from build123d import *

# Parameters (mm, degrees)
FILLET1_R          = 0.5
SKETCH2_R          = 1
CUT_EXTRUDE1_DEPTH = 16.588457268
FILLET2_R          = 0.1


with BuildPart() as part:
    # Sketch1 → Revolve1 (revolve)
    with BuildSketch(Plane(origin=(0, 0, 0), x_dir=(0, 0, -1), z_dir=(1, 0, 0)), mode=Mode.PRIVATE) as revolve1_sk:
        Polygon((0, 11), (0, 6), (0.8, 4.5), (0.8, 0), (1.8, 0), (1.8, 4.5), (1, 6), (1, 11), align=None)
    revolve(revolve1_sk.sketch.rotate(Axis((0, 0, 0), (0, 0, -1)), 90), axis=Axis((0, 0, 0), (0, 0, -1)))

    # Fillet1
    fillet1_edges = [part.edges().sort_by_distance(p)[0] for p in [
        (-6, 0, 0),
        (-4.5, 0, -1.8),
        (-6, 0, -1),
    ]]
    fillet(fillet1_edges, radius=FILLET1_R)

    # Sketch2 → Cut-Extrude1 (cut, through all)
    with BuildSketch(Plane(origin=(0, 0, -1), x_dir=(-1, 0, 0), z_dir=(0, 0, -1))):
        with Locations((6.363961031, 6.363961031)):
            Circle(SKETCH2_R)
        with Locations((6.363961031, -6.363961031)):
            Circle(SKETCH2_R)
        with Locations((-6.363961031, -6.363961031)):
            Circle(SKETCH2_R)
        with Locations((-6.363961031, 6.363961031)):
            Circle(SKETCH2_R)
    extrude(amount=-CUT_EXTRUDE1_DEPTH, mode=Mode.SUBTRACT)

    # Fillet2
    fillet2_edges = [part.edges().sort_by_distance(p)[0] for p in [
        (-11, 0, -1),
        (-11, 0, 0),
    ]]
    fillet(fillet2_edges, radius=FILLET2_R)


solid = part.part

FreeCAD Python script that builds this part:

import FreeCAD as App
import Part
import Sketcher

V = App.Vector


def edges_at(feature, points):
    """Names of the edges that pass closest to the given points."""
    edges = feature.Shape.Edges
    near = lambda p: min(range(len(edges)), key=lambda i: edges[i].distToShape(Part.Vertex(*p))[0])
    return sorted({f"Edge{near(p) + 1}" for p in points})


def add_polygon(sketch, points):
    """Adds a closed chain of lines whose ends are joined by coincident constraints."""
    first, n = sketch.GeometryCount, len(points)
    for a, b in zip(points, points[1:] + points[:1]):
        sketch.addGeometry(Part.LineSegment(App.Vector(*a, 0), App.Vector(*b, 0)), False)
    for i in range(n):
        sketch.addConstraint(Sketcher.Constraint("Coincident", first + i, 2, first + (i + 1) % n, 1))

doc = App.newDocument("Part")
body = doc.addObject("PartDesign::Body", "Body")

# Sketch on YZ plane
sketch1 = body.newObject("Sketcher::SketchObject", "Sketch")
sketch1.AttachmentSupport = (doc.getObject("YZ_Plane"), [""])
sketch1.MapMode = "FlatFace"
add_polygon(sketch1, [(11, 0), (6, 0), (4.5, -0.8), (0, -0.8), (0, -1.8), (4.5, -1.8), (6, -1), (11, -1)])  # lines 0-7
sketch1.addConstraint(Sketcher.Constraint("Horizontal", 0))
sketch1.addConstraint(Sketcher.Constraint("Horizontal", 2))
sketch1.addConstraint(Sketcher.Constraint("Vertical", 3))
sketch1.addConstraint(Sketcher.Constraint("Horizontal", 4))
sketch1.addConstraint(Sketcher.Constraint("Horizontal", 6))
sketch1.addConstraint(Sketcher.Constraint("Vertical", 7))
sketch1.addConstraint(Sketcher.Constraint("PointOnObject", 0, 2, -1))
sketch1.addConstraint(Sketcher.Constraint("PointOnObject", 2, 2, -2))
sketch1.addConstraint(Sketcher.Constraint("Parallel", 1, 5))
sketch1.addConstraint(Sketcher.Constraint("Vertical", 1, 2, 4, 2))
sketch1.addConstraint(Sketcher.Constraint("Vertical", 0, 2, 5, 2))
sketch1.addConstraint(Sketcher.Constraint("DistanceX", 0, 2, 0, 1, 5.0))
sketch1.addConstraint(Sketcher.Constraint("DistanceY", 3, 2, 3, 1, 1.0))
sketch1.addConstraint(Sketcher.Constraint("DistanceX", 2, 2, 2, 1, 4.5))
sketch1.addConstraint(Sketcher.Constraint("DistanceX", -1, 1, 0, 2, 6.0))
sketch1.addConstraint(Sketcher.Constraint("Distance", 1, 1.7))
revolution = body.newObject("PartDesign::Revolution", "Revolution")
revolution.Profile = sketch1
revolution.ReferenceAxis = (sketch1, ["V_Axis"])
revolution.Angle = 360
doc.recompute()

fillet = body.newObject("PartDesign::Fillet", "Fillet")
fillet.Base = (revolution, edges_at(revolution, [(-6, 0, 0), (-4.5, 0, -1.8), (-6, 0, -1)]))
fillet.Radius = 0.5

# Sketch on XY plane
sketch2 = body.newObject("Sketcher::SketchObject", "Sketch001")
sketch2.AttachmentSupport = (doc.getObject("XY_Plane"), [""])
sketch2.MapMode = "FlatFace"
sketch2.AttachmentOffset = App.Placement(V(0, 0, -1), App.Rotation())
sketch2.addGeometry(Part.Circle(V(-6.4, 6.4, 0), V(0, 0, 1), 1), False)
sketch2.addGeometry(Part.Circle(V(-6.4, -6.4, 0), V(0, 0, 1), 1), False)
sketch2.addGeometry(Part.Circle(V(6.4, -6.4, 0), V(0, 0, 1), 1), False)
sketch2.addGeometry(Part.Circle(V(6.4, 6.4, 0), V(0, 0, 1), 1), False)
sketch2.addConstraint(Sketcher.Constraint("Equal", 0, 1))
sketch2.addConstraint(Sketcher.Constraint("Equal", 1, 2))
sketch2.addConstraint(Sketcher.Constraint("Equal", 2, 3))
sketch2.addConstraint(Sketcher.Constraint("Symmetric", 0, 3, 2, 3, -1, 1))
sketch2.addConstraint(Sketcher.Constraint("Symmetric", 1, 3, 3, 3, -1, 1))
sketch2.addConstraint(Sketcher.Constraint("Symmetric", 1, 3, 2, 3, -2))
sketch2.addConstraint(Sketcher.Constraint("Diameter", 0, 2.0))
sketch2.addConstraint(Sketcher.Constraint("DistanceX", 0, 3, -1, 1, 6.363961))
sketch2.addConstraint(Sketcher.Constraint("DistanceY", -1, 1, 0, 3, 6.363961))
pocket1 = body.newObject("PartDesign::Pocket", "Pocket")
pocket1.Profile = sketch2
pocket1.Type = "ThroughAll"
pocket1.Reversed = True
doc.recompute()

fillet2 = body.newObject("PartDesign::Fillet", "Fillet001")
fillet2.Base = (pocket1, edges_at(pocket1, [(-11, 0, -1), (-11, 0, 0)]))
fillet2.Radius = 0.1

doc.recompute()
